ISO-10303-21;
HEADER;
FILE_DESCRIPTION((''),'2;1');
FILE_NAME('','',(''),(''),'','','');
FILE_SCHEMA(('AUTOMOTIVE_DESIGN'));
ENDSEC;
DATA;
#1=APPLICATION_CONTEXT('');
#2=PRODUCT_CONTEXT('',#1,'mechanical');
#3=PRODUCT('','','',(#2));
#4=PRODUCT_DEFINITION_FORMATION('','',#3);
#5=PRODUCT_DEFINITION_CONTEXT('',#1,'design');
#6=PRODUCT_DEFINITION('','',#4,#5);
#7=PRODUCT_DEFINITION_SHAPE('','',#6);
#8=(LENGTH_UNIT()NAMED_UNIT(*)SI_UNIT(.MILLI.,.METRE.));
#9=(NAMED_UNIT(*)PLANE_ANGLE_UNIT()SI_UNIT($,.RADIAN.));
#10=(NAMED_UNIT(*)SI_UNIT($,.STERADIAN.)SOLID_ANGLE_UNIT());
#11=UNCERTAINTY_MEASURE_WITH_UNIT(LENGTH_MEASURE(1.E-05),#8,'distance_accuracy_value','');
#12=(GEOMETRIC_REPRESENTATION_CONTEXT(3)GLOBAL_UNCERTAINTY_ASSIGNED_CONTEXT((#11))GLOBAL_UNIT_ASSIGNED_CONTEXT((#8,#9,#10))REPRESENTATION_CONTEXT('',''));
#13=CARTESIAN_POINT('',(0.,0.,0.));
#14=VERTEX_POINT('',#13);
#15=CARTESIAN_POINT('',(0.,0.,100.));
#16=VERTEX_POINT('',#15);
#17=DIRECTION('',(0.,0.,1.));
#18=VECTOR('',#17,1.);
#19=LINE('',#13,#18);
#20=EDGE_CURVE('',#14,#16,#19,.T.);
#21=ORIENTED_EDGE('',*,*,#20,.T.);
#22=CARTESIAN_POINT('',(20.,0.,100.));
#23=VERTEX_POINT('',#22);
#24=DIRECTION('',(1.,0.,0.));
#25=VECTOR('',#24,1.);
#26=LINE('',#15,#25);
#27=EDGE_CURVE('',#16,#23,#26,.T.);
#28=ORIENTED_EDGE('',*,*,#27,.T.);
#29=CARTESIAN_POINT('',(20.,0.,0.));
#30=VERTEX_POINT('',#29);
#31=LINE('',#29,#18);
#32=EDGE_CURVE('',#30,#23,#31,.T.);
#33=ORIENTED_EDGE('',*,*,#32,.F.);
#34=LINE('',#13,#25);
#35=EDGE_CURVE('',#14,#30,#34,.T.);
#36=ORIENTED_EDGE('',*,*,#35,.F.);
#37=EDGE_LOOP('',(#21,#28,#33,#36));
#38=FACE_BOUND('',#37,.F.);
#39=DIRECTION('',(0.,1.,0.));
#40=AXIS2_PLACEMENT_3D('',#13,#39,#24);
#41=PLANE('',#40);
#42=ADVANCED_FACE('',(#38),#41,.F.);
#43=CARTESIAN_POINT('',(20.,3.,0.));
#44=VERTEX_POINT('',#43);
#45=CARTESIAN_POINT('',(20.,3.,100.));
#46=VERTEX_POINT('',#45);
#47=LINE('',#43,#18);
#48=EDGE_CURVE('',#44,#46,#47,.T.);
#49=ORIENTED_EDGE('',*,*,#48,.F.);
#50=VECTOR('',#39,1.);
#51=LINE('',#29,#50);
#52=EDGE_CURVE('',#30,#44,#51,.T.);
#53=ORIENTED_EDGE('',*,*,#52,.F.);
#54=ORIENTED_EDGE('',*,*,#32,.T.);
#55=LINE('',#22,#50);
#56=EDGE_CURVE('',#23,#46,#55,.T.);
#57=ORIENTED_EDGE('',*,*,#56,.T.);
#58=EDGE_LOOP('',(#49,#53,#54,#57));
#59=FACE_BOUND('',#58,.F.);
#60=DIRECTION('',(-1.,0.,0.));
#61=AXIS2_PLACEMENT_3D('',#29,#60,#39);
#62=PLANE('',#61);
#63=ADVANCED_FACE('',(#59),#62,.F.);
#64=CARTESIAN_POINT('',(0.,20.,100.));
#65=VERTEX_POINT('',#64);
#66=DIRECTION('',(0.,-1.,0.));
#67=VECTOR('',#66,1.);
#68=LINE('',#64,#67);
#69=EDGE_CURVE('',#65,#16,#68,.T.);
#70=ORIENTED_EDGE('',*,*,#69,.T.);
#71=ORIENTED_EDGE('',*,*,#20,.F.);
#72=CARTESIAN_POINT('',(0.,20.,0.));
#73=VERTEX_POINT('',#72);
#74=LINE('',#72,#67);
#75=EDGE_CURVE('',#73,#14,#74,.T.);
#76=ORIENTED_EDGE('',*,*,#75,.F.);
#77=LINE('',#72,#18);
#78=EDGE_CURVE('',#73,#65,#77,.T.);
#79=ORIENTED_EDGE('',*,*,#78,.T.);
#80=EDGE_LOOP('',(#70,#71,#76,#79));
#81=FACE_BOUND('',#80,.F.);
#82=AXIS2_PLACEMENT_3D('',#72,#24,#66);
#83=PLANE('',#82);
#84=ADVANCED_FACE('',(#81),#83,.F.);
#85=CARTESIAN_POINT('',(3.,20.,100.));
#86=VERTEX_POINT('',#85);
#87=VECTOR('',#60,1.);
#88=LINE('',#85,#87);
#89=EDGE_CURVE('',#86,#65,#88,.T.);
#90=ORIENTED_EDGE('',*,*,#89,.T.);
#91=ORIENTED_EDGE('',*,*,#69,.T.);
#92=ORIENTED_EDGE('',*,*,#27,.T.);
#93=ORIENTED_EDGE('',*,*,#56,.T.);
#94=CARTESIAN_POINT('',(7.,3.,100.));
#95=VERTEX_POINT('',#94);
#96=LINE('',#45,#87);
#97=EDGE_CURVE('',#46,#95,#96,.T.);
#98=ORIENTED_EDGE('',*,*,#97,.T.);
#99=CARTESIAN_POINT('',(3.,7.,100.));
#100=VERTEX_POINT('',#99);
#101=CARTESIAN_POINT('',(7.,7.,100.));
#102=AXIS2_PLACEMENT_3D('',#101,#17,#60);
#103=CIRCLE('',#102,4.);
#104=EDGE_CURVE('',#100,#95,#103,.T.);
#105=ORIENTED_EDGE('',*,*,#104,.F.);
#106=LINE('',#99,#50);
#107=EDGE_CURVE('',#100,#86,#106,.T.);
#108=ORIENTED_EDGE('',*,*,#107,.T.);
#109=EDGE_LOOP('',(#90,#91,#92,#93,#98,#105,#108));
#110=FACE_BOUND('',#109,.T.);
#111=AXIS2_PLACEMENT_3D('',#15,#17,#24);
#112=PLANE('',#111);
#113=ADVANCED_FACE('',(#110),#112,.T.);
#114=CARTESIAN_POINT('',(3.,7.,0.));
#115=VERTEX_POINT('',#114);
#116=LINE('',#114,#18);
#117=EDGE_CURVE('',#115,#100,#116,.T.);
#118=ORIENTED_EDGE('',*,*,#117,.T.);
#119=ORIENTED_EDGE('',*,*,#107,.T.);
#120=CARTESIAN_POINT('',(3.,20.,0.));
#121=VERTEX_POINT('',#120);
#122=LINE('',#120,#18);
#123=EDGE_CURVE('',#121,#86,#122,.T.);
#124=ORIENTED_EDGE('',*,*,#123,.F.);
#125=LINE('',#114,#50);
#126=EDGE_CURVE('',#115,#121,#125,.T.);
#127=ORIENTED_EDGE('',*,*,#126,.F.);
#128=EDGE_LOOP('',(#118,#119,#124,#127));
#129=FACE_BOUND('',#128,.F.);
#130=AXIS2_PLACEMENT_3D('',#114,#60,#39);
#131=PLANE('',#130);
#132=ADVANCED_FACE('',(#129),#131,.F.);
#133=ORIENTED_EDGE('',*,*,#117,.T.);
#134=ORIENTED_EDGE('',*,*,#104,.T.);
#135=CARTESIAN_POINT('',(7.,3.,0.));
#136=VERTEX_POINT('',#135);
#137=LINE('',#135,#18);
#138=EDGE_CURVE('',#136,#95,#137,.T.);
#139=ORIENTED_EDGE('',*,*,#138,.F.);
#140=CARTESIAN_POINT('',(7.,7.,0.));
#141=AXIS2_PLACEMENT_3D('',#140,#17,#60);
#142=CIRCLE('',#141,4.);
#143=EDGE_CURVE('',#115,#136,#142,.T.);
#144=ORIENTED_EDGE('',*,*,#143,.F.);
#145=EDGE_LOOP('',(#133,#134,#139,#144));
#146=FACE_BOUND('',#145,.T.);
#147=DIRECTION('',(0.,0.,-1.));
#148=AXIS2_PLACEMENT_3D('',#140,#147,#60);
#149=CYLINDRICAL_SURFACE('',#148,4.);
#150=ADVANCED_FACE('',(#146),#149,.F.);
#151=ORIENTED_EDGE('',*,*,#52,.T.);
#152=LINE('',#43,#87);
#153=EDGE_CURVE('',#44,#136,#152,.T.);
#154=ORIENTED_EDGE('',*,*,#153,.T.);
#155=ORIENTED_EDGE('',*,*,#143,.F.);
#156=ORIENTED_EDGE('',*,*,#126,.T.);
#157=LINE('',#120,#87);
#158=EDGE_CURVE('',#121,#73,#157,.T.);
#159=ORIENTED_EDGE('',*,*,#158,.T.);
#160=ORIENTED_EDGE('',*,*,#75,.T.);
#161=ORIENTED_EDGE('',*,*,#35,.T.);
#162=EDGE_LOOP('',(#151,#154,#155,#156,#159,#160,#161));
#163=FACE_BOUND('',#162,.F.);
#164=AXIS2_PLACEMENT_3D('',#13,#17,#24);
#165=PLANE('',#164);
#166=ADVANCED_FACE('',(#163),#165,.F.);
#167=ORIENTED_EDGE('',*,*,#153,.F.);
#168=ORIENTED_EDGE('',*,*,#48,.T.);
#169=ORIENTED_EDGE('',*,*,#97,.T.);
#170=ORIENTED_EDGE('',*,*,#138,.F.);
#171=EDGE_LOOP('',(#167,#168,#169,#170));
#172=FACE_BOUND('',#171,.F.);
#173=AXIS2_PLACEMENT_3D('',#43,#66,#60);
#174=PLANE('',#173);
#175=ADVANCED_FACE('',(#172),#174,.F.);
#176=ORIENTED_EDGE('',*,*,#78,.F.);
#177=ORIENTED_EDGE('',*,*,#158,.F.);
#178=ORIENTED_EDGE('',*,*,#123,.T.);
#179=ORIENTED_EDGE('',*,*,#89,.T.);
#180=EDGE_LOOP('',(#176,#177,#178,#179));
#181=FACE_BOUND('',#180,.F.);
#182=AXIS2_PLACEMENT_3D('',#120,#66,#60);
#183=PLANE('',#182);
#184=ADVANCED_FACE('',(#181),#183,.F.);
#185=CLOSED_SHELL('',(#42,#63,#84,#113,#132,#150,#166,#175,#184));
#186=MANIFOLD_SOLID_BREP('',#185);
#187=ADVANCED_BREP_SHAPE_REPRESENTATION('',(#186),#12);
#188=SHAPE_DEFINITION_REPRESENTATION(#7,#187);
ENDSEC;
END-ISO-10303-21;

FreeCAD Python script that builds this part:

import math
import FreeCAD as App
import Part
import Sketcher

doc = App.newDocument("Part")
params = doc.addObject("Spreadsheet::Sheet", "Params")
for row, (alias, value) in enumerate([
    ("sketch1_radius", "4 mm"),
    ("sketch1_width", "3 mm"),
    ("sketch1_width2", "20 mm"),
    ("pad1_length", "100 mm"),
], start=1):
    params.set(f"A{row}", alias)
    params.set(f"B{row}", "=" + value)
    params.setAlias(f"B{row}", alias)

body = doc.addObject("PartDesign::Body", "Body")

# Sketch on XY plane
sketch1 = body.newObject("Sketcher::SketchObject", "Sketch")
sketch1.AttachmentSupport = (doc.getObject("XY_Plane"), [""])
sketch1.MapMode = "FlatFace"
sketch1.addGeometry([
    Part.LineSegment(App.Vector(3, 20, 0), App.Vector(0, 20, 0)),  # 0
    Part.LineSegment(App.Vector(0, 20, 0), App.Vector(0, 0, 0)),  # 1
    Part.LineSegment(App.Vector(0, 0, 0), App.Vector(20, 0, 0)),  # 2
    Part.LineSegment(App.Vector(20, 0, 0), App.Vector(20, 3, 0)),  # 3
    Part.LineSegment(App.Vector(20, 3, 0), App.Vector(7, 3, 0)),  # 4
    Part.ArcOfCircle(Part.Circle(App.Vector(7, 7, 0), App.Vector(0, 0, 1), 4), math.radians(180), math.radians(270)),  # 5
    Part.LineSegment(App.Vector(3, 7, 0), App.Vector(3, 20, 0)),  # 6
], False)
sketch1.addConstraint([
    Sketcher.Constraint("Coincident", 0, 2, 1, 1),
    Sketcher.Constraint("Coincident", 1, 2, 2, 1),
    Sketcher.Constraint("Coincident", 2, 2, 3, 1),
    Sketcher.Constraint("Coincident", 3, 2, 4, 1),
    Sketcher.Constraint("Tangent", 4, 2, 5, 2),
    Sketcher.Constraint("Tangent", 5, 1, 6, 1),
    Sketcher.Constraint("Coincident", 6, 2, 0, 1),
    Sketcher.Constraint("Horizontal", 0),
    Sketcher.Constraint("Vertical", 1),
    Sketcher.Constraint("Horizontal", 2),
    Sketcher.Constraint("Vertical", 3),
    Sketcher.Constraint("Horizontal", 4),
    Sketcher.Constraint("Vertical", 6),
    Sketcher.Constraint("Coincident", 1, 2, -1, 1),
    Sketcher.Constraint("Equal", 2, 1),
    Sketcher.Constraint("Equal", 0, 3),
    Sketcher.Constraint("Radius", 5, 4.0),
    Sketcher.Constraint("DistanceX", 0, 2, 0, 1, 3.0),
    Sketcher.Constraint("DistanceX", 2, 1, 2, 2, 20.0),
])
sketch1.setExpression("Constraints[16]", "Params.sketch1_radius")
sketch1.setExpression("Constraints[17]", "Params.sketch1_width")
sketch1.setExpression("Constraints[18]", "Params.sketch1_width2")
pad1 = body.newObject("PartDesign::Pad", "Pad")
pad1.Profile = sketch1
pad1.setExpression("Length", "Params.pad1_length")

doc.recompute()
